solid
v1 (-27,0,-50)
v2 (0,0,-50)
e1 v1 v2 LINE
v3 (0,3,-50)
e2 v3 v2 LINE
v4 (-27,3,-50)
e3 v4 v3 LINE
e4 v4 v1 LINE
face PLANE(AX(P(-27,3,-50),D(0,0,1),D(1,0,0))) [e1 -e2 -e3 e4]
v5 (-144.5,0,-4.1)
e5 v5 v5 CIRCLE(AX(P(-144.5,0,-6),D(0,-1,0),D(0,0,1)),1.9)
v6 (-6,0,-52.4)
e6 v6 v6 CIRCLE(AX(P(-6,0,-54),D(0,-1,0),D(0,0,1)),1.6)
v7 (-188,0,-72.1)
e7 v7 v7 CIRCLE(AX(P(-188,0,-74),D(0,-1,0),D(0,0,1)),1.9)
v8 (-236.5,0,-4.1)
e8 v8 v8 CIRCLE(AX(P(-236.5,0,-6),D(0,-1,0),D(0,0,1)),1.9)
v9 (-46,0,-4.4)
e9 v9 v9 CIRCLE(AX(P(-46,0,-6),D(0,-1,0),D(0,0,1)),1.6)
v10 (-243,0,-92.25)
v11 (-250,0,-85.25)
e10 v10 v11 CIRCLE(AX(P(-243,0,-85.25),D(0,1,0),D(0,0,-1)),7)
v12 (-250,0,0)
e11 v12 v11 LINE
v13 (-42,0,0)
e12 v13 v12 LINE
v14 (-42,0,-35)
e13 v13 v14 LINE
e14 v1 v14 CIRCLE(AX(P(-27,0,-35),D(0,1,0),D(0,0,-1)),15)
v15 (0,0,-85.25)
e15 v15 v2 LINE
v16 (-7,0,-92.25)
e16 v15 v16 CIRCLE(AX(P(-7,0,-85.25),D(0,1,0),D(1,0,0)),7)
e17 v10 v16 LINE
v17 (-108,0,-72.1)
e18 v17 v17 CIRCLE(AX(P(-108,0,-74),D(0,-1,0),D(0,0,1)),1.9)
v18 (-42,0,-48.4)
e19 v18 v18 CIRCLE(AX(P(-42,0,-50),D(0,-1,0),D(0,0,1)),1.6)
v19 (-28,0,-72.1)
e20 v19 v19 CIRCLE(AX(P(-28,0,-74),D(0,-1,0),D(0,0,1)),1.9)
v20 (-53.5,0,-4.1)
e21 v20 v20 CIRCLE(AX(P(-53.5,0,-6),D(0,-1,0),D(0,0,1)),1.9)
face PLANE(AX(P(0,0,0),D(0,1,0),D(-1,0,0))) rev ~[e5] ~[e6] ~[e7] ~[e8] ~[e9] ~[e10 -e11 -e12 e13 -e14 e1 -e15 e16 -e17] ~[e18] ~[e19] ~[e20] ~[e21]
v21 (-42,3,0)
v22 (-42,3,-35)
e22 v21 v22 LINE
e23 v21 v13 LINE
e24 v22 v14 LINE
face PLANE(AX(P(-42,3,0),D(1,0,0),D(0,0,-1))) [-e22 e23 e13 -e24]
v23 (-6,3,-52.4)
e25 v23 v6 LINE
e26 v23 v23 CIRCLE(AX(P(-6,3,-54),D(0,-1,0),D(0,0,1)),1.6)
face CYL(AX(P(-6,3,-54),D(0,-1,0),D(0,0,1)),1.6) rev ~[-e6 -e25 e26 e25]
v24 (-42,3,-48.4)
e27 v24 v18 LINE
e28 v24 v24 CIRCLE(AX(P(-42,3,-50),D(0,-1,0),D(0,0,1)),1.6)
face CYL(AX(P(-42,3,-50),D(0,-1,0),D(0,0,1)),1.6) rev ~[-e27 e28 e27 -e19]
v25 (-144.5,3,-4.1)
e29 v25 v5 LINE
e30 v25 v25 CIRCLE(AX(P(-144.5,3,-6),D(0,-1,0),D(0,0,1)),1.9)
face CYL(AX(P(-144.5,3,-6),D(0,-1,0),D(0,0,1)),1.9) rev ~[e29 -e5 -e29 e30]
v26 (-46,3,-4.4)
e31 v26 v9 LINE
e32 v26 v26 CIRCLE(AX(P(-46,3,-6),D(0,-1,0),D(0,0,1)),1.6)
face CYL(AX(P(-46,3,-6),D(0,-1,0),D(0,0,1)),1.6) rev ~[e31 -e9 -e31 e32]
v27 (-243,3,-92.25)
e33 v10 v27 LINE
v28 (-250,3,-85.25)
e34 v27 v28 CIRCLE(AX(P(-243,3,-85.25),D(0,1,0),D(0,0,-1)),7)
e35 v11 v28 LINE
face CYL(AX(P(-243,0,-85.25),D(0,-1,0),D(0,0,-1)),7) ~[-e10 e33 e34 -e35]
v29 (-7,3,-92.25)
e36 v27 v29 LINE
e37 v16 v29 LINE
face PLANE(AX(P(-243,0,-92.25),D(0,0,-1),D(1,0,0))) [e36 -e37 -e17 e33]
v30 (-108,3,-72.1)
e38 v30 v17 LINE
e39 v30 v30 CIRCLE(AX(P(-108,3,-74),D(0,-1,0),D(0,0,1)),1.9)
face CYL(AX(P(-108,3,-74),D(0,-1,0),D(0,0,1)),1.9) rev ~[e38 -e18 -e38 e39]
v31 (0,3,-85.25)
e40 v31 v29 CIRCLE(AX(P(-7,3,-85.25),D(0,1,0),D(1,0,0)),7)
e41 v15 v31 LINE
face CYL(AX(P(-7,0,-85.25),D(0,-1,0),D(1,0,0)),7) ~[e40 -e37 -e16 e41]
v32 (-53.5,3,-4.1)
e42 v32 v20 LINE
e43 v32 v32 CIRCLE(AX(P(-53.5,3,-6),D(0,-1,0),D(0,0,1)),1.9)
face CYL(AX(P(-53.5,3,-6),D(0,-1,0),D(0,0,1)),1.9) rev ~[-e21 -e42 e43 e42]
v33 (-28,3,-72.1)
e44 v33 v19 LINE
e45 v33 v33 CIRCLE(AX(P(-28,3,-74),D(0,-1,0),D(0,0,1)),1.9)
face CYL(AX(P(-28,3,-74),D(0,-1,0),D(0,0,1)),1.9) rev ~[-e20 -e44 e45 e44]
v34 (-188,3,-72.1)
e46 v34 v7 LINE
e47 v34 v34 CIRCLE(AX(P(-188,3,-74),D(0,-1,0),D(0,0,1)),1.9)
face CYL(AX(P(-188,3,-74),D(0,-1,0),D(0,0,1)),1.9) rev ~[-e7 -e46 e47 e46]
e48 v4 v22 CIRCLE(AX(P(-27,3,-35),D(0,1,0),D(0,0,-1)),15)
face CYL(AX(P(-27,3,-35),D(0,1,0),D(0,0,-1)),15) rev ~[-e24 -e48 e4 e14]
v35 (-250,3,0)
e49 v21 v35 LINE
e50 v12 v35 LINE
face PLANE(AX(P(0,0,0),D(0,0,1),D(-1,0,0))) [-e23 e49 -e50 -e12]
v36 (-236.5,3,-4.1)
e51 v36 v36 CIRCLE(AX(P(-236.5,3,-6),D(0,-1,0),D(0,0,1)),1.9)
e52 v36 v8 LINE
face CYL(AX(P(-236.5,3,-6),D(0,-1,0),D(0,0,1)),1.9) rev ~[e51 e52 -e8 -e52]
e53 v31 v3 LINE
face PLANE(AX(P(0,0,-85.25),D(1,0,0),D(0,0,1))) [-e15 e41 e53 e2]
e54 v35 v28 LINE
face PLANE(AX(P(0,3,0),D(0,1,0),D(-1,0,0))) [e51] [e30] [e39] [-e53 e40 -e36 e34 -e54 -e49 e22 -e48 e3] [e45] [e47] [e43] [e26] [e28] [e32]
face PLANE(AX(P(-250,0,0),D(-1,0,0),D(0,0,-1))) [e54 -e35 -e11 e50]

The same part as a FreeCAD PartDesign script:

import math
import FreeCAD as App
import Part
import Sketcher

V = App.Vector
Q = App.Units.Quantity

doc = App.newDocument("Part")
body = doc.addObject("PartDesign::Body", "Body")

# Sketch on XZ plane
sketch1 = body.newObject("Sketcher::SketchObject", "Sketch")
sketch1.AttachmentSupport = (doc.getObject("XZ_Plane"), [""])
sketch1.MapMode = "FlatFace"
sketch1.addGeometry(Part.LineSegment(V(-250, 0, 0), V(0, 0, 0)), False)
sketch1.addGeometry(Part.LineSegment(V(0, 0, 0), V(0, -85, 0)), False)
sketch1.addGeometry(Part.ArcOfCircle(Part.Circle(V(-7, -85, 0), V(0, 0, 1), 7), math.radians(-90), math.radians(0)), False)
sketch1.addGeometry(Part.LineSegment(V(-7, -92, 0), V(-243, -92, 0)), False)
sketch1.addGeometry(Part.ArcOfCircle(Part.Circle(V(-243, -85, 0), V(0, 0, 1), 7), math.radians(180), math.radians(270)), False)
sketch1.addGeometry(Part.LineSegment(V(-250, -85, 0), V(-250, 0, 0)), False)
sketch1.addConstraint(Sketcher.Constraint("Coincident", 0, 2, 1, 1))
sketch1.addConstraint(Sketcher.Constraint("Tangent", 1, 2, 2, 2))
sketch1.addConstraint(Sketcher.Constraint("Tangent", 2, 1, 3, 1))
sketch1.addConstraint(Sketcher.Constraint("Tangent", 3, 2, 4, 2))
sketch1.addConstraint(Sketcher.Constraint("Tangent", 4, 1, 5, 1))
sketch1.addConstraint(Sketcher.Constraint("Coincident", 5, 2, 0, 1))
sketch1.addConstraint(Sketcher.Constraint("Horizontal", 0))
sketch1.addConstraint(Sketcher.Constraint("Vertical", 1))
sketch1.addConstraint(Sketcher.Constraint("Horizontal", 3))
sketch1.addConstraint(Sketcher.Constraint("Vertical", 5))
sketch1.addConstraint(Sketcher.Constraint("Coincident", 0, 2, -1, 1))
sketch1.addConstraint(Sketcher.Constraint("Equal", 2, 4))
sketch1.addConstraint(Sketcher.Constraint("Radius", 2, Q("7 mm")))
sketch1.addConstraint(Sketcher.Constraint("DistanceX", 0, 1, 0, 2, Q("250 mm")))
sketch1.addConstraint(Sketcher.Constraint("DistanceY", 2, 1, -1, 1, Q("92.25 mm")))
pad1 = body.newObject("PartDesign::Pad", "Pad")
pad1.Profile = sketch1
pad1.Length = 3
pad1.Reversed = True

# Sketch on XZ plane
sketch2 = body.newObject("Sketcher::SketchObject", "Sketch001")
sketch2.AttachmentSupport = (doc.getObject("XZ_Plane"), [""])
sketch2.MapMode = "FlatFace"
sketch2.AttachmentOffset = App.Placement(V(0, 0, -3), App.Rotation())
sketch2.addGeometry(Part.Circle(V(-28, -74, 0), V(0, 0, 1), 1.9), False)
sketch2.addGeometry(Part.Circle(V(-108, -74, 0), V(0, 0, 1), 1.9), False)
sketch2.addGeometry(Part.Circle(V(-188, -74, 0), V(0, 0, 1), 1.9), False)
sketch2.addGeometry(Part.Circle(V(-53.5, -6, 0), V(0, 0, 1), 1.9), False)
sketch2.addGeometry(Part.Circle(V(-144.5, -6, 0), V(0, 0, 1), 1.9), False)
sketch2.addGeometry(Part.Circle(V(-236.5, -6, 0), V(0, 0, 1), 1.9), False)
sketch2.addConstraint(Sketcher.Constraint("Equal", 0, 1))
sketch2.addConstraint(Sketcher.Constraint("Equal", 1, 2))
sketch2.addConstraint(Sketcher.Constraint("Equal", 2, 3))
sketch2.addConstraint(Sketcher.Constraint("Equal", 3, 4))
sketch2.addConstraint(Sketcher.Constraint("Equal", 4, 5))
sketch2.addConstraint(Sketcher.Constraint("Horizontal", 0, 3, 1, 3))
sketch2.addConstraint(Sketcher.Constraint("Horizontal", 1, 3, 2, 3))
sketch2.addConstraint(Sketcher.Constraint("Horizontal", 3, 3, 4, 3))
sketch2.addConstraint(Sketcher.Constraint("Horizontal", 4, 3, 5, 3))
sketch2.addConstraint(Sketcher.Constraint("Diameter", 0, Q("3.8 mm")))
sketch2.addConstraint(Sketcher.Constraint("DistanceX", 0, 3, -1, 1, Q("28 mm")))
sketch2.addConstraint(Sketcher.Constraint("DistanceY", 0, 3, -1, 1, Q("74 mm")))
sketch2.addConstraint(Sketcher.Constraint("DistanceX", 1, 3, -1, 1, Q("108 mm")))
sketch2.addConstraint(Sketcher.Constraint("DistanceX", 2, 3, -1, 1, Q("188 mm")))
sketch2.addConstraint(Sketcher.Constraint("DistanceY", 3, 3, -1, 1, Q("6 mm")))
sketch2.addConstraint(Sketcher.Constraint("DistanceX", 4, 3, 3, 3, Q("91 mm")))
sketch2.addConstraint(Sketcher.Constraint("DistanceX", 5, 3, 4, 3, Q("92 mm")))
sketch2.addConstraint(Sketcher.Constraint("DistanceX", 3, 3, -1, 1, Q("53.5 mm")))
doc.recompute()
hole = body.newObject("PartDesign::Hole", "Hole")
hole.Profile = sketch2
hole.ThreadType = "None"
hole.Diameter = 3.8
hole.DepthType = "ThroughAll"
hole.Reversed = True

# Sketch on XZ plane
sketch3 = body.newObject("Sketcher::SketchObject", "Sketch002")
sketch3.AttachmentSupport = (doc.getObject("XZ_Plane"), [""])
sketch3.MapMode = "FlatFace"
sketch3.AttachmentOffset = App.Placement(V(0, 0, -3), App.Rotation())
sketch3.addGeometry(Part.LineSegment(V(-42, 0, 0), V(0, 0, 0)), False)
sketch3.addGeometry(Part.LineSegment(V(0, 0, 0), V(0, -50, 0)), False)
sketch3.addGeometry(Part.LineSegment(V(0, -50, 0), V(-27, -50, 0)), False)
sketch3.addGeometry(Part.ArcOfCircle(Part.Circle(V(-27, -35, 0), V(0, 0, 1), 15), math.radians(180), math.radians(270)), False)
sketch3.addGeometry(Part.LineSegment(V(-42, -35, 0), V(-42, 0, 0)), False)
sketch3.addConstraint(Sketcher.Constraint("Coincident", 0, 2, 1, 1))
sketch3.addConstraint(Sketcher.Constraint("Coincident", 1, 2, 2, 1))
sketch3.addConstraint(Sketcher.Constraint("Tangent", 2, 2, 3, 2))
sketch3.addConstraint(Sketcher.Constraint("Tangent", 3, 1, 4, 1))
sketch3.addConstraint(Sketcher.Constraint("Coincident", 4, 2, 0, 1))
sketch3.addConstraint(Sketcher.Constraint("Horizontal", 0))
sketch3.addConstraint(Sketcher.Constraint("Vertical", 1))
sketch3.addConstraint(Sketcher.Constraint("Horizontal", 2))
sketch3.addConstraint(Sketcher.Constraint("Vertical", 4))
sketch3.addConstraint(Sketcher.Constraint("Coincident", 0, 2, -1, 1))
sketch3.addConstraint(Sketcher.Constraint("Radius", 3, Q("15 mm")))
sketch3.addConstraint(Sketcher.Constraint("DistanceY", 1, 2, 1, 1, Q("50 mm")))
sketch3.addConstraint(Sketcher.Constraint("DistanceX", 0, 1, 0, 2, Q("42 mm")))
pocket1 = body.newObject("PartDesign::Pocket", "Pocket")
pocket1.Profile = sketch3
pocket1.Type = "ThroughAll"
pocket1.Reversed = True

# Sketch on XZ plane
sketch4 = body.newObject("Sketcher::SketchObject", "Sketch003")
sketch4.AttachmentSupport = (doc.getObject("XZ_Plane"), [""])
sketch4.MapMode = "FlatFace"
sketch4.AttachmentOffset = App.Placement(V(0, 0, -3), App.Rotation())
sketch4.addGeometry(Part.Circle(V(-6, -54, 0), V(0, 0, 1), 1.6), False)
sketch4.addGeometry(Part.Circle(V(-46, -6, 0), V(0, 0, 1), 1.6), False)
sketch4.addGeometry(Part.Circle(V(-42, -50, 0), V(0, 0, 1), 1.6), False)
sketch4.addConstraint(Sketcher.Constraint("Equal", 0, 1))
sketch4.addConstraint(Sketcher.Constraint("Equal", 1, 2))
sketch4.addConstraint(Sketcher.Constraint("Diameter", 0, Q("3.2 mm")))
sketch4.addConstraint(Sketcher.Constraint("DistanceX", 0, 3, -1, 1, Q("6 mm")))
sketch4.addConstraint(Sketcher.Constraint("DistanceY", 0, 3, -1, 1, Q("54 mm")))
sketch4.addConstraint(Sketcher.Constraint("DistanceX", 1, 3, -1, 1, Q("46 mm")))
sketch4.addConstraint(Sketcher.Constraint("DistanceY", 1, 3, -1, 1, Q("6 mm")))
sketch4.addConstraint(Sketcher.Constraint("DistanceX", 2, 3, -1, 1, Q("42 mm")))
sketch4.addConstraint(Sketcher.Constraint("DistanceY", 2, 3, -1, 1, Q("50 mm")))
doc.recompute()
hole2 = body.newObject("PartDesign::Hole", "Hole001")
hole2.Profile = sketch4
hole2.ThreadType = "None"
hole2.Diameter = 3.2
hole2.DepthType = "ThroughAll"
hole2.Reversed = True

doc.recompute()
